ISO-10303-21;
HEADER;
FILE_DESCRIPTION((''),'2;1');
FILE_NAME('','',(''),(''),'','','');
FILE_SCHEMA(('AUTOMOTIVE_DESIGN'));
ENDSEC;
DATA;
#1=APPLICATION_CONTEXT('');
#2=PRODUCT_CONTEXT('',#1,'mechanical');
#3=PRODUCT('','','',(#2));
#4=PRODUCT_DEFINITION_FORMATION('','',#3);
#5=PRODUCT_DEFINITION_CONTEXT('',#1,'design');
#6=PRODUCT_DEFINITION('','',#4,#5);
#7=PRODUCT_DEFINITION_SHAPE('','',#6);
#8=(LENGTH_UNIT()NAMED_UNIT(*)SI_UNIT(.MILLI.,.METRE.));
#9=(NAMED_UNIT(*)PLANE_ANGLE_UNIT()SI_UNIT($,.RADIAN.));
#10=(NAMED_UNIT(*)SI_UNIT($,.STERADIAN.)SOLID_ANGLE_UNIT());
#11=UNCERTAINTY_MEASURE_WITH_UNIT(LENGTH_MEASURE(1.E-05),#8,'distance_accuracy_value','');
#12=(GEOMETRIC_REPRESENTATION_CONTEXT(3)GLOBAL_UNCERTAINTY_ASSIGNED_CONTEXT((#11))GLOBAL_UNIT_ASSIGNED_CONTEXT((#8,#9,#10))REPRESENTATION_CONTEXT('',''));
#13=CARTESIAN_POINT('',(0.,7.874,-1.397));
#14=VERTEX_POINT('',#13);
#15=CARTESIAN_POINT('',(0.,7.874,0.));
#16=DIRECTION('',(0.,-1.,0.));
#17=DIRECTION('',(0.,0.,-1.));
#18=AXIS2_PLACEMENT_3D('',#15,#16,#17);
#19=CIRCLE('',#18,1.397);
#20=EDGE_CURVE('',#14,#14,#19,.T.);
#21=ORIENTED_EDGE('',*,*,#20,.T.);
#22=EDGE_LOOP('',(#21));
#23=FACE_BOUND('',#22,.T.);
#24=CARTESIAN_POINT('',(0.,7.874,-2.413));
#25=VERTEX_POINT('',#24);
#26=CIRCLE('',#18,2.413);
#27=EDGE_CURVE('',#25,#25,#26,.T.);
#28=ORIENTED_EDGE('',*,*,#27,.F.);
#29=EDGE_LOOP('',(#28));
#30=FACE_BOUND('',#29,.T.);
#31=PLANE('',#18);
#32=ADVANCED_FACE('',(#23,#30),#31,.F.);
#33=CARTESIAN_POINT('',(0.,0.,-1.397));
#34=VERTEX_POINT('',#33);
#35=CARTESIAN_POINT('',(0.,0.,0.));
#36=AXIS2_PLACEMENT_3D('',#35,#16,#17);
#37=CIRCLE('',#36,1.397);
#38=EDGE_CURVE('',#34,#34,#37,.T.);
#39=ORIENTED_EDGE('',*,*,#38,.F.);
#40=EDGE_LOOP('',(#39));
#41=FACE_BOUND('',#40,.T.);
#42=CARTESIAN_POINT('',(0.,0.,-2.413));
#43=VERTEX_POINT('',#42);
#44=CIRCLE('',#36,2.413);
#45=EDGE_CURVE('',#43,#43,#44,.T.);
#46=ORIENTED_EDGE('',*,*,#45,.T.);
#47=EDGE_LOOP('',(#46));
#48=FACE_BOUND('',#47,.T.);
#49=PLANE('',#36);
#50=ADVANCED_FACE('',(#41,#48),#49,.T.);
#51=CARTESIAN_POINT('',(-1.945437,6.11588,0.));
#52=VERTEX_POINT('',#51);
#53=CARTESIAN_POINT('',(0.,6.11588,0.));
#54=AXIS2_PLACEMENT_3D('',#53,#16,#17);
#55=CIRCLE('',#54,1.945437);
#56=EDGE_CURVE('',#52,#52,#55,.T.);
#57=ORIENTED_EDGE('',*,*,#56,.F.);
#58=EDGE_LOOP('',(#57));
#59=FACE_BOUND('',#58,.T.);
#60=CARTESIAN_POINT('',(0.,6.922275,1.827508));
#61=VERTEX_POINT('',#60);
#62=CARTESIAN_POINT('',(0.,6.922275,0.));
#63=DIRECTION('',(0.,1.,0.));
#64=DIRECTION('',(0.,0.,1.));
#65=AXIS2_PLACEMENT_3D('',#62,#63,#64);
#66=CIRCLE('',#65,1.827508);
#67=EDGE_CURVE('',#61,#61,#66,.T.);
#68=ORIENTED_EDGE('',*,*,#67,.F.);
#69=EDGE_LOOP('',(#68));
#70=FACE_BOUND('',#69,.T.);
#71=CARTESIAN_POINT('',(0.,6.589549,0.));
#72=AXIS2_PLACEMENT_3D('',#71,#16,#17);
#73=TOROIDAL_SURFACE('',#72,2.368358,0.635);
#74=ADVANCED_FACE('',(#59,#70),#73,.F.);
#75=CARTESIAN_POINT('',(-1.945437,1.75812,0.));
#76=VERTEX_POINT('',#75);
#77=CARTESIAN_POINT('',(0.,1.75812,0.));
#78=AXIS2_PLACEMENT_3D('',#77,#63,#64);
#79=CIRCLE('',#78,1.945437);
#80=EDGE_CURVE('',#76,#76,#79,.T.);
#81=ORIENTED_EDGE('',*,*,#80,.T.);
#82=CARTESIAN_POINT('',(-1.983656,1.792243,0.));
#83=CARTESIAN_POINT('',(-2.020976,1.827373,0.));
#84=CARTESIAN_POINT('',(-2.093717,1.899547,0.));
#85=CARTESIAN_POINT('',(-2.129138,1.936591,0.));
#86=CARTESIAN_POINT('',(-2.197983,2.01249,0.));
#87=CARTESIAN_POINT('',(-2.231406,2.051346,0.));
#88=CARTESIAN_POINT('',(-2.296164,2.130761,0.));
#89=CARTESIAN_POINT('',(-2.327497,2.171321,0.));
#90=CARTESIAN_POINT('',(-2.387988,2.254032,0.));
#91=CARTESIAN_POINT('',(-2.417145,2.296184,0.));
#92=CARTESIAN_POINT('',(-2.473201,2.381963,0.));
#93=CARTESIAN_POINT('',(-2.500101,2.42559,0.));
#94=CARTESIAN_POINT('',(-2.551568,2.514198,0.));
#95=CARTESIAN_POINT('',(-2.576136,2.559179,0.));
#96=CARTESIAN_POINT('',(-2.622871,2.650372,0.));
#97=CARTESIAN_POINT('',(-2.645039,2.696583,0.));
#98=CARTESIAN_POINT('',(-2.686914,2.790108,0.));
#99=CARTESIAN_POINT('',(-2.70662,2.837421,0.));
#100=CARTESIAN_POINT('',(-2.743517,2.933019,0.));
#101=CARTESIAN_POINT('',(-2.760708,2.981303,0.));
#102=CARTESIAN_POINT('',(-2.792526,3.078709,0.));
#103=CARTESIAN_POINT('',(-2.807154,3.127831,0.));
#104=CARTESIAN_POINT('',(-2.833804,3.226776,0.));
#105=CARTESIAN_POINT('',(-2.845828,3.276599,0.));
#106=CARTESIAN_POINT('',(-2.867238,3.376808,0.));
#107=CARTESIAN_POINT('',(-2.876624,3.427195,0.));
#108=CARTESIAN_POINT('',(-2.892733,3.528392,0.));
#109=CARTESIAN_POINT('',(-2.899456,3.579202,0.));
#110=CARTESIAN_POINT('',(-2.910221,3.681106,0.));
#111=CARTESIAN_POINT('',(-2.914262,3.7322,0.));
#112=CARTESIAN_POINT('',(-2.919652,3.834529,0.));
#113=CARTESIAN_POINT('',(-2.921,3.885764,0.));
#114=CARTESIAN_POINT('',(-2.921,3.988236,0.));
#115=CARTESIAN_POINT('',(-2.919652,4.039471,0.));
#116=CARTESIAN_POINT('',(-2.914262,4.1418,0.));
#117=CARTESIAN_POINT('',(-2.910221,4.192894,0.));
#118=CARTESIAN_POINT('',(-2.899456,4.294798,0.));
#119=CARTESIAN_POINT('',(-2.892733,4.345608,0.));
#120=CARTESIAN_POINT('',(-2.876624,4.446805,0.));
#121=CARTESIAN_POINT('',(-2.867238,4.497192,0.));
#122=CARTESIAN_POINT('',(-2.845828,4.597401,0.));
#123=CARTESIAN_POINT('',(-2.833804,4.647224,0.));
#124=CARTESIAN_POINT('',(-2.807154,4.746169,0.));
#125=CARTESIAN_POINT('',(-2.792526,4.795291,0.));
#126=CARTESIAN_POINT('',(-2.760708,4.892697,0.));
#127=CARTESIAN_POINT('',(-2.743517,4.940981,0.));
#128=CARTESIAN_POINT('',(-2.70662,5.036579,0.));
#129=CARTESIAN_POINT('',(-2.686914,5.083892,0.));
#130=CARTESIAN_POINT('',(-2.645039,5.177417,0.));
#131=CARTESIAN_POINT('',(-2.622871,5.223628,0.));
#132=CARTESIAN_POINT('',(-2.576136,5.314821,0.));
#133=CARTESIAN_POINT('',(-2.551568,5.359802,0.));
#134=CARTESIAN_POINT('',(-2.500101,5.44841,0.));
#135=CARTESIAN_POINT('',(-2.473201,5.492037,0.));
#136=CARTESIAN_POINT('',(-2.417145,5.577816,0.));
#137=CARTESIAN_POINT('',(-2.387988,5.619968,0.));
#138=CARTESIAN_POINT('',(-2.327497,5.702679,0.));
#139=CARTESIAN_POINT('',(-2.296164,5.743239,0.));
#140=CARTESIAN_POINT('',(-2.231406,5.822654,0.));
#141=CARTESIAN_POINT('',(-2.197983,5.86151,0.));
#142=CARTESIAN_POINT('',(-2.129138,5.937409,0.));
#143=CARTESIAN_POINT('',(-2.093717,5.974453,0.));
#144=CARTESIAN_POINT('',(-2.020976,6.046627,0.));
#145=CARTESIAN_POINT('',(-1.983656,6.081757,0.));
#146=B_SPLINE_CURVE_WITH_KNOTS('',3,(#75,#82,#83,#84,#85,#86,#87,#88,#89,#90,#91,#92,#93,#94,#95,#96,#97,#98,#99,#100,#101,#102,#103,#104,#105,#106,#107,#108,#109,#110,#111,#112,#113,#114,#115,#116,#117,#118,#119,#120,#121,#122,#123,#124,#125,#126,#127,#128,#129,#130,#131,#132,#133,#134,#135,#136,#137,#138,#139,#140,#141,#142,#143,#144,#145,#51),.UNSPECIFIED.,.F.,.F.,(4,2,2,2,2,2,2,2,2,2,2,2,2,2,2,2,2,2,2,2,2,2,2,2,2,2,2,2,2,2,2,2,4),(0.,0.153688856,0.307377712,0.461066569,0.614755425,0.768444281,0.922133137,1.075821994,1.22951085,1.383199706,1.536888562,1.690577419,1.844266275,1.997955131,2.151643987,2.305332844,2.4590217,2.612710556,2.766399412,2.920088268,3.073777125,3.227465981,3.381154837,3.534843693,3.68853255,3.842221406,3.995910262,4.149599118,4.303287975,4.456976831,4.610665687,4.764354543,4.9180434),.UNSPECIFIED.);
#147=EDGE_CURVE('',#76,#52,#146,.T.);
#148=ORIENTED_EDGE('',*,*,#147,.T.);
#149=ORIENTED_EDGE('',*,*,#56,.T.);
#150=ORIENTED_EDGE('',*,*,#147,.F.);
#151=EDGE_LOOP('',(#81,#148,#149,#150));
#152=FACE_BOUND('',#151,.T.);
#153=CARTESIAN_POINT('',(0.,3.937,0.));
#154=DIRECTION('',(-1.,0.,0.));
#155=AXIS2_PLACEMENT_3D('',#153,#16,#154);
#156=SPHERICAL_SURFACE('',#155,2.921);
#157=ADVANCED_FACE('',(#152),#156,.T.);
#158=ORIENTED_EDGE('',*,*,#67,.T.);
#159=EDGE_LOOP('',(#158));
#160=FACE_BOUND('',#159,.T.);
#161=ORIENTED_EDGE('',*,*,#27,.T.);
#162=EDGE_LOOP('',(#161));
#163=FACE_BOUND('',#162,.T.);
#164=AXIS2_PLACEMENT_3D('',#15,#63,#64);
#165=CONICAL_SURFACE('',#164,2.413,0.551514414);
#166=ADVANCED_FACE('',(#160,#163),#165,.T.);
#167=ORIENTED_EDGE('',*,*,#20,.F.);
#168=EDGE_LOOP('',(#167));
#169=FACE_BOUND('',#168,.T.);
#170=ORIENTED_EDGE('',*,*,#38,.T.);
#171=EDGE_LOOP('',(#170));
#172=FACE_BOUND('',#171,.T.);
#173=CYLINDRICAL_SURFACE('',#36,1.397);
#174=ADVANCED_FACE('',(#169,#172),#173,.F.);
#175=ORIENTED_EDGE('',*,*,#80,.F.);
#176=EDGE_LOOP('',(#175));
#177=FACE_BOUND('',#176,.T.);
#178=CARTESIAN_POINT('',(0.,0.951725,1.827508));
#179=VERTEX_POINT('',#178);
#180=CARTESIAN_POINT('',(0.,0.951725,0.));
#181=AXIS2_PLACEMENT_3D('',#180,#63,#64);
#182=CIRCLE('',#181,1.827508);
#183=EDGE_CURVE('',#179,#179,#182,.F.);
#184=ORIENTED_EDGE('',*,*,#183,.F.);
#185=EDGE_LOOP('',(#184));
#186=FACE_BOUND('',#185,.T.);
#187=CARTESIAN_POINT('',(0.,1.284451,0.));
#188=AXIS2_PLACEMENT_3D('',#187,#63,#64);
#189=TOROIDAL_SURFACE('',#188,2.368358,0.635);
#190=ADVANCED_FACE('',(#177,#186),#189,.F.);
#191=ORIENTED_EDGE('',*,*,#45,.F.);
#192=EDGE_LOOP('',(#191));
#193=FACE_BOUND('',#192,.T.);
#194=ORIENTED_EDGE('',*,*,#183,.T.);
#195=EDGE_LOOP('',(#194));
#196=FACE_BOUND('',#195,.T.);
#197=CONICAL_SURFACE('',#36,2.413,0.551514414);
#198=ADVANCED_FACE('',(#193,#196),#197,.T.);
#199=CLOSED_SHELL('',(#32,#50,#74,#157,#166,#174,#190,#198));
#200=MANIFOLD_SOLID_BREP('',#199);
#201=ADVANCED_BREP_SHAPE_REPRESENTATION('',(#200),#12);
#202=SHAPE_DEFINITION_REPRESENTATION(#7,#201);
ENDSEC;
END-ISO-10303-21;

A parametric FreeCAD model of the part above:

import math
import FreeCAD as App
import Part
import Sketcher
Q = App.Units.Quantity


def edges_at(feature, points):
    """Names of the edges that pass closest to the given points."""
    edges = feature.Shape.Edges
    near = lambda p: min(range(len(edges)), key=lambda i: edges[i].distToShape(Part.Vertex(*p))[0])
    return sorted({f"Edge{near(p) + 1}" for p in points})

doc = App.newDocument("Part")
body = doc.addObject("PartDesign::Body", "Body")

# Sketch on XY plane
sketch1 = body.newObject("Sketcher::SketchObject", "Sketch")
sketch1.AttachmentSupport = (doc.getObject("XY_Plane"), [""])
sketch1.MapMode = "FlatFace"
sketch1.addGeometry([
    Part.LineSegment(App.Vector(-1.397, 7.874, 0), App.Vector(-2.413, 7.874, 0)),  # 0
    Part.LineSegment(App.Vector(-2.413, 7.874, 0), App.Vector(-1.524, 6.42892, 0)),  # 1
    Part.ArcOfCircle(Part.Circle(App.Vector(0, 3.937, 0), App.Vector(0, 0, 1), 2.921), math.radians(121.448981), math.radians(238.551019)),  # 2
    Part.LineSegment(App.Vector(-1.524, 1.44508, 0), App.Vector(-2.413, 0, 0)),  # 3
    Part.LineSegment(App.Vector(-2.413, 0, 0), App.Vector(-1.397, 0, 0)),  # 4
    Part.LineSegment(App.Vector(-1.397, 0, 0), App.Vector(-1.397, 7.874, 0)),  # 5
], False)
sketch1.addConstraint([
    Sketcher.Constraint("Coincident", 0, 2, 1, 1),
    Sketcher.Constraint("Coincident", 1, 2, 2, 1),
    Sketcher.Constraint("Coincident", 2, 2, 3, 1),
    Sketcher.Constraint("Coincident", 3, 2, 4, 1),
    Sketcher.Constraint("Coincident", 4, 2, 5, 1),
    Sketcher.Constraint("Coincident", 5, 2, 0, 1),
    Sketcher.Constraint("Horizontal", 0),
    Sketcher.Constraint("Horizontal", 4),
    Sketcher.Constraint("Vertical", 5),
    Sketcher.Constraint("PointOnObject", 2, 3, -2),
    Sketcher.Constraint("PointOnObject", 3, 2, -1),
    Sketcher.Constraint("Vertical", 1, 2, 2, 2),
    Sketcher.Constraint("Vertical", 0, 2, 3, 2),
    Sketcher.Constraint("Equal", 1, 3),
    Sketcher.Constraint("Radius", 2, Q("0.115 in")),
    Sketcher.Constraint("DistanceX", 0, 2, 0, 1, Q("0.04 in")),
    Sketcher.Constraint("DistanceY", 5, 1, 5, 2, Q("0.31 in")),
    Sketcher.Constraint("DistanceX", 1, 2, -1, 1, Q("0.06 in")),
    Sketcher.Constraint("DistanceX", 0, 2, -1, 1, Q("0.095 in")),
])
revolution = body.newObject("PartDesign::Revolution", "Revolution")
revolution.Profile = sketch1
revolution.ReferenceAxis = (sketch1, ["V_Axis"])
revolution.Angle = 360
doc.recompute()

fillet = body.newObject("PartDesign::Fillet", "Fillet")
fillet.Base = (revolution, edges_at(revolution, [(1.524, 1.445, 0), (1.524, 6.429, 0)]))
fillet.Radius = Q("0.025 in")

doc.recompute()
